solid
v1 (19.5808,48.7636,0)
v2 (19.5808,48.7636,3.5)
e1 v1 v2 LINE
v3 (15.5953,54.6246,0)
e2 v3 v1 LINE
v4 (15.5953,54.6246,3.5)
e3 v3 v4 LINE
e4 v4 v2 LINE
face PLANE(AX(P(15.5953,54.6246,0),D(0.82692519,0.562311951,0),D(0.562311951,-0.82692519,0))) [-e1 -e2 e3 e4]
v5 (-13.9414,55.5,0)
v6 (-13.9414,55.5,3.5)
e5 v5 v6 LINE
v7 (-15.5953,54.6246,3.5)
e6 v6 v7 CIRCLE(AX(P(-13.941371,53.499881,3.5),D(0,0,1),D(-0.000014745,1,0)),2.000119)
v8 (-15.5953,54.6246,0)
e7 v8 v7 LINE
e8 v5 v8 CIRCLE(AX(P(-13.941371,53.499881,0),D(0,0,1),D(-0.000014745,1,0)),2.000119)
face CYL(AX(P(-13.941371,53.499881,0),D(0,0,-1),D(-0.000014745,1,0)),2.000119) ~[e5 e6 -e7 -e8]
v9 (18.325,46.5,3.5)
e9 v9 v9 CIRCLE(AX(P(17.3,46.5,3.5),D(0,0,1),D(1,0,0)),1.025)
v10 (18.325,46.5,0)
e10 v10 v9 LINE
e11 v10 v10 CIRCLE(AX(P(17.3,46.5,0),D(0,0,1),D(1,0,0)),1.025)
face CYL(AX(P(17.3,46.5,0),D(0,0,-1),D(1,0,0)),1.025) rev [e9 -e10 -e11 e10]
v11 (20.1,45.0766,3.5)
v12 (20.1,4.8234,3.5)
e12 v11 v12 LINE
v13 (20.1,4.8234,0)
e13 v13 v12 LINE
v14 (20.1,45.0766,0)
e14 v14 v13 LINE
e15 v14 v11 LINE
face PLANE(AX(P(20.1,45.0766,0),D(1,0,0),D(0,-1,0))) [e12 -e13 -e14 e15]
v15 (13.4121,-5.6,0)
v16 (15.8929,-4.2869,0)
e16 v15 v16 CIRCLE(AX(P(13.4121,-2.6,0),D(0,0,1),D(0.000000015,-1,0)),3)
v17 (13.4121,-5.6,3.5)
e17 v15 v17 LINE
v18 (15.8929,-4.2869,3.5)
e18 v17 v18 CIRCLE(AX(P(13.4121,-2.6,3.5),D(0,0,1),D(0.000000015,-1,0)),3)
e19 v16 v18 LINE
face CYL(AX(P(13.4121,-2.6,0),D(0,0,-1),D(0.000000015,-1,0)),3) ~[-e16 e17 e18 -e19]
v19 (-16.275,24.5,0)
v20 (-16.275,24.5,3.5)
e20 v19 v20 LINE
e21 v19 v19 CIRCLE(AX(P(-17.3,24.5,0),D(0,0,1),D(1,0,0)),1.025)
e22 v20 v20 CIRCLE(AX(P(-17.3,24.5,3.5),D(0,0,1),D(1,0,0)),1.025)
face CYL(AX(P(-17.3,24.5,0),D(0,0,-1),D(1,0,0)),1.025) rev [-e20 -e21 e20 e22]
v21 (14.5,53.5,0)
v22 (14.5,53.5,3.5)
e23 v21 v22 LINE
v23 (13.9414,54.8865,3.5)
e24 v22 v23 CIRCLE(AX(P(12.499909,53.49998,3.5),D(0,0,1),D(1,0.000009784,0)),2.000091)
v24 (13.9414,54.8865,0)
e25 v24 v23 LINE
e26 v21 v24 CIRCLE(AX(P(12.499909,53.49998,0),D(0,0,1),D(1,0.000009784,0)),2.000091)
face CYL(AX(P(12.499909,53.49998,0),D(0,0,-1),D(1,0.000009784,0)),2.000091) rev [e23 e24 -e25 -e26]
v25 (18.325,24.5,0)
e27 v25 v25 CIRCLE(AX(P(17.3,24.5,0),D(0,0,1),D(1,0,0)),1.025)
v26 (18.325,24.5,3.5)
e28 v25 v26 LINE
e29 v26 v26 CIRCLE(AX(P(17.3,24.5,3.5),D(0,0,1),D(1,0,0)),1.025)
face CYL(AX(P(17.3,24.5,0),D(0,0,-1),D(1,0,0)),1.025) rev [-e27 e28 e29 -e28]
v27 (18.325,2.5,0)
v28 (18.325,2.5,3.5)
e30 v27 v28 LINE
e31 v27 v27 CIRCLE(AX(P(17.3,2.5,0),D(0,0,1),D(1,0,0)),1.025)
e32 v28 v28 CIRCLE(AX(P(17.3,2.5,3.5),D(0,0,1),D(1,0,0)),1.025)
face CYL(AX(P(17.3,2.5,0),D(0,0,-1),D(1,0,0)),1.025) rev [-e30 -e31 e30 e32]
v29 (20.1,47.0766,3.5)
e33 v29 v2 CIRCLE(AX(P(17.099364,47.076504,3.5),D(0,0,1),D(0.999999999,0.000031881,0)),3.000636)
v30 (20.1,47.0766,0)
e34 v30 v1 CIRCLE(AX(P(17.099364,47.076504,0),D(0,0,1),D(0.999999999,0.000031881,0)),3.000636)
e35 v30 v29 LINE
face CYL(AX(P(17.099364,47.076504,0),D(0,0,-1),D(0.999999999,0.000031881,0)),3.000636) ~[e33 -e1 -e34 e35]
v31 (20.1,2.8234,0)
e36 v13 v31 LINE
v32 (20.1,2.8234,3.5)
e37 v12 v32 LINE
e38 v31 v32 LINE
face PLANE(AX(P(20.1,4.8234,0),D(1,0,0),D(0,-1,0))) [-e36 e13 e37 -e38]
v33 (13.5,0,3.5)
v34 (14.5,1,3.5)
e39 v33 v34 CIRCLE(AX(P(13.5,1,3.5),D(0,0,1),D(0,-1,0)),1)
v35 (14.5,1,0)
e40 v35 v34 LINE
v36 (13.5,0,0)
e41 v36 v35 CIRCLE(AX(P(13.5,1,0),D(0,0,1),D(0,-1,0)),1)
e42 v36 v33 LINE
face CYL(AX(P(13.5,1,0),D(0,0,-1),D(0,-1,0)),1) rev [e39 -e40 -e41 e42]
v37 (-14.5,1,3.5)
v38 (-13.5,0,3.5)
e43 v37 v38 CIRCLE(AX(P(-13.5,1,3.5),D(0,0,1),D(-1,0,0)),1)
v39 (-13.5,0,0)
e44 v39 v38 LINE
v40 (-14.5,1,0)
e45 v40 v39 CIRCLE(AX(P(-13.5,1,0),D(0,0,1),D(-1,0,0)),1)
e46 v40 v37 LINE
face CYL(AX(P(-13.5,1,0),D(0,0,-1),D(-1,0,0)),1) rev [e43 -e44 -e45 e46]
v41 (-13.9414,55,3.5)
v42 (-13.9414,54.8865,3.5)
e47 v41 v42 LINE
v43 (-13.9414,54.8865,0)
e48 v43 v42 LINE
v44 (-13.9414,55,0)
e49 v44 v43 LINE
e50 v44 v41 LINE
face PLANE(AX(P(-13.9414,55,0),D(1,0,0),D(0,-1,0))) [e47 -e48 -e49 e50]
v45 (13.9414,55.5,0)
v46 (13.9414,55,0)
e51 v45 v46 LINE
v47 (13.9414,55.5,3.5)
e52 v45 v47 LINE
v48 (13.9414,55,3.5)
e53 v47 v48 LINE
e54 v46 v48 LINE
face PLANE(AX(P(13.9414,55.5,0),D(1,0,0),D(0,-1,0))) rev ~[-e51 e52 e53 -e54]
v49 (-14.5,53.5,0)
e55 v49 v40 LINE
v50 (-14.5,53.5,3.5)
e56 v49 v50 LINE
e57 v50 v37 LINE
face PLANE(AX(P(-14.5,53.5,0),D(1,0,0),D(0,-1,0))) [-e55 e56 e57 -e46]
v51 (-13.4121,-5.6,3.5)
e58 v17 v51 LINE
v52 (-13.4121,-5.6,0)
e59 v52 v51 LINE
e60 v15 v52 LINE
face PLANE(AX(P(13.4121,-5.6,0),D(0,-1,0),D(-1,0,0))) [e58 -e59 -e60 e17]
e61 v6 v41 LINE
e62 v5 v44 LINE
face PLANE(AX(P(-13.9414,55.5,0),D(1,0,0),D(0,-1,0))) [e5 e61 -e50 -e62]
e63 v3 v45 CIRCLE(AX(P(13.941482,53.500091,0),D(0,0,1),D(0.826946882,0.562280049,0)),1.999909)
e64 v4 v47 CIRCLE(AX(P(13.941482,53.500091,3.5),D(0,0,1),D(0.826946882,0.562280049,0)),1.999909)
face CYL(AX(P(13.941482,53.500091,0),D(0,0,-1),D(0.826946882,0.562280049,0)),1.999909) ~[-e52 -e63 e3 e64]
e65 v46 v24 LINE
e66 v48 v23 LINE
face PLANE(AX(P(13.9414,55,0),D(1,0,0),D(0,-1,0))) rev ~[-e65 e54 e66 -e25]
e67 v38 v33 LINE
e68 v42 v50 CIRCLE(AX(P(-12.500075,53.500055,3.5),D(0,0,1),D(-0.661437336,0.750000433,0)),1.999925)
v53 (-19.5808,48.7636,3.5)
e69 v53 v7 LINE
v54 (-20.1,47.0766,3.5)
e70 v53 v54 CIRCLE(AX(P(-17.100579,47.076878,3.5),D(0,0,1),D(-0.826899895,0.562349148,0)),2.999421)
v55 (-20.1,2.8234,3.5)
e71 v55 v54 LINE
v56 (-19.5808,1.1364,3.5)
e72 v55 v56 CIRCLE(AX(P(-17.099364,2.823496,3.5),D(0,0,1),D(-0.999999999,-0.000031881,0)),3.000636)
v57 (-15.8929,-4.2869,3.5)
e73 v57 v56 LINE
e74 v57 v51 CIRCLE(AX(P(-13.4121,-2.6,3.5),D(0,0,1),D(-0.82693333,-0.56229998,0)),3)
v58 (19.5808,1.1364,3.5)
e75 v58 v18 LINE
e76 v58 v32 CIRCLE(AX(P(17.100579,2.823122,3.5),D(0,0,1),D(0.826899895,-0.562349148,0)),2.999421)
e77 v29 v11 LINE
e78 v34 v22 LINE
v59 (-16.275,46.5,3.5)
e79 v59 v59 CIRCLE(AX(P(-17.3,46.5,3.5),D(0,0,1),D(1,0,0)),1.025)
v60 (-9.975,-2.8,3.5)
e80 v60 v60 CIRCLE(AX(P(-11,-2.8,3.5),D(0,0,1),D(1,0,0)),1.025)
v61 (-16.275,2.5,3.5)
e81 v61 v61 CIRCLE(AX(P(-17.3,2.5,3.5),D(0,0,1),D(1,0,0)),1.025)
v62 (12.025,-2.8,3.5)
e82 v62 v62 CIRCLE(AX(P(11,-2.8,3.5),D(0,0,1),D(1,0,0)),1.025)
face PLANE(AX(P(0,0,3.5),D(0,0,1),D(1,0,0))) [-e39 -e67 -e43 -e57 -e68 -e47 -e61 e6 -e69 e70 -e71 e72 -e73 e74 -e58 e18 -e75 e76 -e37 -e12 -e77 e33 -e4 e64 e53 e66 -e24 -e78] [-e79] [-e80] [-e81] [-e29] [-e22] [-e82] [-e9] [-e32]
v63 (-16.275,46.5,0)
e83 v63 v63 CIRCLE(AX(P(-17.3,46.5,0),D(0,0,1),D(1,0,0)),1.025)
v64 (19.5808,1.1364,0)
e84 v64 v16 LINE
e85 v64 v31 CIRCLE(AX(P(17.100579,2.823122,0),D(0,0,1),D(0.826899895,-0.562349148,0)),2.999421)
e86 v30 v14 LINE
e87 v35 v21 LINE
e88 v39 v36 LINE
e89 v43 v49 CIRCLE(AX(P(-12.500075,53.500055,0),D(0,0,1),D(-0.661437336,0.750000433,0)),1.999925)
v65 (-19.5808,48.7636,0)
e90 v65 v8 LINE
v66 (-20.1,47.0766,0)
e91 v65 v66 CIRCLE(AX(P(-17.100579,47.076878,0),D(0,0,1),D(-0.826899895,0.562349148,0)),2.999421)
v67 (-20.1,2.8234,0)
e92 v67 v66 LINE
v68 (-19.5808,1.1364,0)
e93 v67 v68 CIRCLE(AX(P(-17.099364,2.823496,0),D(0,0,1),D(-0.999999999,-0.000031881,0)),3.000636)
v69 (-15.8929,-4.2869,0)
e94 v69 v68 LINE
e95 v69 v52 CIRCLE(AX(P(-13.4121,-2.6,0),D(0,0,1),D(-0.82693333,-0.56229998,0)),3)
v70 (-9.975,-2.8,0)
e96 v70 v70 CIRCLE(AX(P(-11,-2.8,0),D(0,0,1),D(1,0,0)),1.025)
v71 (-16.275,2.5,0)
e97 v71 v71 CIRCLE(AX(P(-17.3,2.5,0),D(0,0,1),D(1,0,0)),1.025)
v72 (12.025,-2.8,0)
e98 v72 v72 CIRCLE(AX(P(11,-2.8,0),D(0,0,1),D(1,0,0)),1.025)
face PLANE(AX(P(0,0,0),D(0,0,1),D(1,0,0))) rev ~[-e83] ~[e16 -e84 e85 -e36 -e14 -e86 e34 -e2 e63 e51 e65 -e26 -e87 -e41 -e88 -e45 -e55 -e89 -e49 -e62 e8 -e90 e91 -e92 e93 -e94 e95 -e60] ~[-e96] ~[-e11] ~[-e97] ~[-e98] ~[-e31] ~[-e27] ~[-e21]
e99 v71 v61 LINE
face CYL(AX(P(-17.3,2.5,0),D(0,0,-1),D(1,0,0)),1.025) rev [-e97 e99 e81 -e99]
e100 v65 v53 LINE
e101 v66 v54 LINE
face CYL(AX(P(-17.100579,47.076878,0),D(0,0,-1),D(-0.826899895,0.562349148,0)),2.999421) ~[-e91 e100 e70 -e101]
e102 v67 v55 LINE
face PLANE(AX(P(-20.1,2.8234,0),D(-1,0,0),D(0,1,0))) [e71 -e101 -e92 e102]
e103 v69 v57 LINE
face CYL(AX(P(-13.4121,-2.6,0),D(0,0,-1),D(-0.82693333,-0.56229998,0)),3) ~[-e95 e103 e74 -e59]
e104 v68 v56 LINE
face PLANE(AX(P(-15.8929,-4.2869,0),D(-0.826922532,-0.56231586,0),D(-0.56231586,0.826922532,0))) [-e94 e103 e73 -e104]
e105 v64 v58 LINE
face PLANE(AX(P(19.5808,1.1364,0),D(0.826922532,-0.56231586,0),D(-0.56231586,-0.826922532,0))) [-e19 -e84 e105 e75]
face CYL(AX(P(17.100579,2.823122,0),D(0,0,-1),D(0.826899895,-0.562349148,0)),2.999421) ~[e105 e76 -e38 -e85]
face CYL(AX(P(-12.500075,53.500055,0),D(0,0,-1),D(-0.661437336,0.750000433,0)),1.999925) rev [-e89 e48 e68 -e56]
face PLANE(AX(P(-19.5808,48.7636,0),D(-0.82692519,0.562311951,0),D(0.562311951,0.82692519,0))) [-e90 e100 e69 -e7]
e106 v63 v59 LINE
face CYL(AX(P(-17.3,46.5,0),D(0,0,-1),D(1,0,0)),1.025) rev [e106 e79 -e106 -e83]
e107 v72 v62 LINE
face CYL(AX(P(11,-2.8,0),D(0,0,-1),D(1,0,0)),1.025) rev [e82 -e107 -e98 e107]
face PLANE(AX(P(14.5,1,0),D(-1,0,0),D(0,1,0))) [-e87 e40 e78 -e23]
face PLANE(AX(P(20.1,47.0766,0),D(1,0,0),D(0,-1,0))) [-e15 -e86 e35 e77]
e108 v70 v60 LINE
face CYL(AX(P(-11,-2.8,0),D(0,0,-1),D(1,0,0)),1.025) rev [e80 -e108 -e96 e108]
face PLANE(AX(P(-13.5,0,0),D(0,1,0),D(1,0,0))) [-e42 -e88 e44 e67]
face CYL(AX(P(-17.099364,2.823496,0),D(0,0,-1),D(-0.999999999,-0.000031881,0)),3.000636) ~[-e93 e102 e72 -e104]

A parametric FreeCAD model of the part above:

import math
import FreeCAD as App
import Part
import Sketcher

doc = App.newDocument("Part")
body = doc.addObject("PartDesign::Body", "Body")

sketch1 = body.newObject("Sketcher::SketchObject", "Sketch")
sketch1.AttachmentSupport = (doc.getObject("XY_Plane"), [""])
sketch1.MapMode = "FlatFace"
sketch1.addGeometry(Part.LineSegment(App.Vector(-14.5, 1, 0), App.Vector(-14.5, 53.5, 0)), False)
sketch1.addGeometry(Part.ArcOfCircle(Part.Circle(App.Vector(-12.5, 53.5, 0), App.Vector(0, 0, 1), 2), math.radians(136), math.radians(180)), False)
sketch1.addGeometry(Part.LineSegment(App.Vector(-13.9, 54.9, 0), App.Vector(-13.9, 55.5, 0)), False)
sketch1.addGeometry(Part.ArcOfCircle(Part.Circle(App.Vector(-13.9, 53.5, 0), App.Vector(0, 0, 1), 2), math.radians(90), math.radians(146)), False)
sketch1.addGeometry(Part.LineSegment(App.Vector(-15.6, 54.6, 0), App.Vector(-19.6, 48.8, 0)), False)
sketch1.addGeometry(Part.ArcOfCircle(Part.Circle(App.Vector(-17.1, 47.1, 0), App.Vector(0, 0, 1), 3), math.radians(146), math.radians(180)), False)
sketch1.addGeometry(Part.LineSegment(App.Vector(-20.1, 47.1, 0), App.Vector(-20.1, 2.8, 0)), False)
sketch1.addGeometry(Part.ArcOfCircle(Part.Circle(App.Vector(-17.1, 2.8, 0), App.Vector(0, 0, 1), 3), math.radians(180), math.radians(214)), False)
sketch1.addGeometry(Part.LineSegment(App.Vector(-19.6, 1.1, 0), App.Vector(-15.9, -4.3, 0)), False)
sketch1.addGeometry(Part.ArcOfCircle(Part.Circle(App.Vector(-13.4, -2.6, 0), App.Vector(0, 0, 1), 3), math.radians(-146), math.radians(-90)), False)
sketch1.addGeometry(Part.LineSegment(App.Vector(-13.4, -5.6, 0), App.Vector(13.4, -5.6, 0)), False)
sketch1.addGeometry(Part.ArcOfCircle(Part.Circle(App.Vector(13.4, -2.6, 0), App.Vector(0, 0, 1), 3), math.radians(-90), math.radians(-34)), False)
sketch1.addGeometry(Part.LineSegment(App.Vector(15.9, -4.3, 0), App.Vector(19.6, 1.1, 0)), False)
sketch1.addGeometry(Part.ArcOfCircle(Part.Circle(App.Vector(17.1, 2.8, 0), App.Vector(0, 0, 1), 3), math.radians(-34), math.radians(0)), False)
sketch1.addGeometry(Part.LineSegment(App.Vector(20.1, 2.8, 0), App.Vector(20.1, 47.1, 0)), False)
sketch1.addGeometry(Part.ArcOfCircle(Part.Circle(App.Vector(17.1, 47.1, 0), App.Vector(0, 0, 1), 3), math.radians(0), math.radians(34)), False)
sketch1.addGeometry(Part.LineSegment(App.Vector(19.6, 48.8, 0), App.Vector(15.6, 54.6, 0)), False)
sketch1.addGeometry(Part.ArcOfCircle(Part.Circle(App.Vector(13.9, 53.5, 0), App.Vector(0, 0, 1), 2), math.radians(34), math.radians(90)), False)
sketch1.addGeometry(Part.LineSegment(App.Vector(13.9, 55.5, 0), App.Vector(13.9, 54.9, 0)), False)
sketch1.addGeometry(Part.ArcOfCircle(Part.Circle(App.Vector(12.5, 53.5, 0), App.Vector(0, 0, 1), 2), math.radians(0), math.radians(44)), False)
sketch1.addGeometry(Part.LineSegment(App.Vector(14.5, 53.5, 0), App.Vector(14.5, 1, 0)), False)
sketch1.addGeometry(Part.ArcOfCircle(Part.Circle(App.Vector(13.5, 1, 0), App.Vector(0, 0, 1), 1), math.radians(-90), math.radians(0)), False)
sketch1.addGeometry(Part.LineSegment(App.Vector(13.5, 0, 0), App.Vector(-13.5, 0, 0)), False)
sketch1.addGeometry(Part.ArcOfCircle(Part.Circle(App.Vector(-13.5, 1, 0), App.Vector(0, 0, 1), 1), math.radians(180), math.radians(270)), False)
sketch1.addGeometry(Part.Circle(App.Vector(-11, -2.8, 0), App.Vector(0, 0, 1), 1), False)
sketch1.addGeometry(Part.Circle(App.Vector(-17.3, 2.5, 0), App.Vector(0, 0, 1), 1), False)
sketch1.addGeometry(Part.Circle(App.Vector(-17.3, 24.5, 0), App.Vector(0, 0, 1), 1), False)
sketch1.addGeometry(Part.Circle(App.Vector(11, -2.8, 0), App.Vector(0, 0, 1), 1), False)
sketch1.addGeometry(Part.Circle(App.Vector(17.3, 2.5, 0), App.Vector(0, 0, 1), 1), False)
sketch1.addGeometry(Part.Circle(App.Vector(17.3, 24.5, 0), App.Vector(0, 0, 1), 1), False)
sketch1.addGeometry(Part.Circle(App.Vector(-17.3, 46.5, 0), App.Vector(0, 0, 1), 1), False)
sketch1.addGeometry(Part.Circle(App.Vector(17.3, 46.5, 0), App.Vector(0, 0, 1), 1), False)
sketch1.addConstraint(Sketcher.Constraint("Tangent", 0, 2, 1, 2))
sketch1.addConstraint(Sketcher.Constraint("Coincident", 1, 1, 2, 1))
sketch1.addConstraint(Sketcher.Constraint("Coincident", 2, 2, 3, 1))
sketch1.addConstraint(Sketcher.Constraint("Tangent", 3, 2, 4, 1))
sketch1.addConstraint(Sketcher.Constraint("Tangent", 4, 2, 5, 1))
sketch1.addConstraint(Sketcher.Constraint("Tangent", 5, 2, 6, 1))
sketch1.addConstraint(Sketcher.Constraint("Tangent", 6, 2, 7, 1))
sketch1.addConstraint(Sketcher.Constraint("Tangent", 7, 2, 8, 1))
sketch1.addConstraint(Sketcher.Constraint("Tangent", 8, 2, 9, 1))
sketch1.addConstraint(Sketcher.Constraint("Tangent", 9, 2, 10, 1))
sketch1.addConstraint(Sketcher.Constraint("Tangent", 10, 2, 11, 1))
sketch1.addConstraint(Sketcher.Constraint("Tangent", 11, 2, 12, 1))
sketch1.addConstraint(Sketcher.Constraint("Tangent", 12, 2, 13, 1))
sketch1.addConstraint(Sketcher.Constraint("Tangent", 13, 2, 14, 1))
sketch1.addConstraint(Sketcher.Constraint("Tangent", 14, 2, 15, 1))
sketch1.addConstraint(Sketcher.Constraint("Tangent", 15, 2, 16, 1))
sketch1.addConstraint(Sketcher.Constraint("Tangent", 16, 2, 17, 1))
sketch1.addConstraint(Sketcher.Constraint("Coincident", 17, 2, 18, 1))
sketch1.addConstraint(Sketcher.Constraint("Coincident", 18, 2, 19, 2))
sketch1.addConstraint(Sketcher.Constraint("Tangent", 19, 1, 20, 1))
sketch1.addConstraint(Sketcher.Constraint("Tangent", 20, 2, 21, 2))
sketch1.addConstraint(Sketcher.Constraint("Tangent", 21, 1, 22, 1))
sketch1.addConstraint(Sketcher.Constraint("Tangent", 22, 2, 23, 2))
sketch1.addConstraint(Sketcher.Constraint("Tangent", 23, 1, 0, 1))
sketch1.addConstraint(Sketcher.Constraint("Vertical", 0))
sketch1.addConstraint(Sketcher.Constraint("Vertical", 2))
sketch1.addConstraint(Sketcher.Constraint("Vertical", 6))
sketch1.addConstraint(Sketcher.Constraint("Horizontal", 10))
sketch1.addConstraint(Sketcher.Constraint("Vertical", 14))
sketch1.addConstraint(Sketcher.Constraint("Vertical", 18))
sketch1.addConstraint(Sketcher.Constraint("Vertical", 20))
sketch1.addConstraint(Sketcher.Constraint("Horizontal", 22))
sketch1.addConstraint(Sketcher.Constraint("Equal", 1, 3))
sketch1.addConstraint(Sketcher.Constraint("Equal", 5, 7))
sketch1.addConstraint(Sketcher.Constraint("Equal", 7, 9))
sketch1.addConstraint(Sketcher.Constraint("Equal", 9, 11))
sketch1.addConstraint(Sketcher.Constraint("Equal", 11, 13))
sketch1.addConstraint(Sketcher.Constraint("Equal", 13, 15))
sketch1.addConstraint(Sketcher.Constraint("Equal", 3, 17))
sketch1.addConstraint(Sketcher.Constraint("Equal", 17, 19))
sketch1.addConstraint(Sketcher.Constraint("Equal", 21, 23))
sketch1.addConstraint(Sketcher.Constraint("Equal", 24, 25))
sketch1.addConstraint(Sketcher.Constraint("Equal", 25, 26))
sketch1.addConstraint(Sketcher.Constraint("Equal", 26, 27))
sketch1.addConstraint(Sketcher.Constraint("Equal", 27, 28))
sketch1.addConstraint(Sketcher.Constraint("Equal", 28, 29))
sketch1.addConstraint(Sketcher.Constraint("Equal", 29, 30))
sketch1.addConstraint(Sketcher.Constraint("Equal", 30, 31))
sketch1.addConstraint(Sketcher.Constraint("Symmetric", 21, 1, 22, 2, -1, 1))
sketch1.addConstraint(Sketcher.Constraint("Symmetric", 7, 3, 13, 3, -2))
sketch1.addConstraint(Sketcher.Constraint("Symmetric", 3, 3, 17, 3, -2))
sketch1.addConstraint(Sketcher.Constraint("Symmetric", 24, 3, 27, 3, -2))
sketch1.addConstraint(Sketcher.Constraint("Symmetric", 25, 3, 28, 3, -2))
sketch1.addConstraint(Sketcher.Constraint("Symmetric", 26, 3, 29, 3, -2))
sketch1.addConstraint(Sketcher.Constraint("Symmetric", 30, 3, 31, 3, -2))
sketch1.addConstraint(Sketcher.Constraint("Symmetric", 1, 1, 18, 2, -2))
sketch1.addConstraint(Sketcher.Constraint("Parallel", 4, 12))
sketch1.addConstraint(Sketcher.Constraint("Parallel", 8, 16))
sketch1.addConstraint(Sketcher.Constraint("Horizontal", 1, 3, 3, 3))
sketch1.addConstraint(Sketcher.Constraint("Horizontal", 5, 3, 15, 3))
sketch1.addConstraint(Sketcher.Constraint("Vertical", 25, 3, 26, 3))
sketch1.addConstraint(Sketcher.Constraint("Vertical", 26, 3, 30, 3))
sketch1.addConstraint(Sketcher.Constraint("Vertical", 3, 3, 1, 1))
sketch1.addConstraint(Sketcher.Constraint("Radius", 1, 2.0))
sketch1.addConstraint(Sketcher.Constraint("Radius", 21, 1.0))
sketch1.addConstraint(Sketcher.Constraint("Radius", 5, 3.0))
sketch1.addConstraint(Sketcher.Constraint("Diameter", 24, 2.05))
sketch1.addConstraint(Sketcher.Constraint("DistanceX", 22, 2, 22, 1, 27.0))
sketch1.addConstraint(Sketcher.Constraint("DistanceY", 0, 1, 0, 2, 52.5))
sketch1.addConstraint(Sketcher.Constraint("DistanceX", 24, 3, -1, 1, 11.0))
sketch1.addConstraint(Sketcher.Constraint("DistanceY", 25, 3, 26, 3, 22.0))
sketch1.addConstraint(Sketcher.Constraint("DistanceY", 30, 3, 3, 3, 7.0))
sketch1.addConstraint(Sketcher.Constraint("DistanceY", 26, 3, 30, 3, 22.0))
sketch1.addConstraint(Sketcher.Constraint("DistanceX", 5, 3, -1, 1, 17.1))
sketch1.addConstraint(Sketcher.Constraint("DistanceY", 9, 3, -1, 1, 2.6))
sketch1.addConstraint(Sketcher.Constraint("DistanceY", 24, 3, -1, 1, 2.8))
sketch1.addConstraint(Sketcher.Constraint("DistanceX", 25, 3, -1, 1, 17.3))
sketch1.addConstraint(Sketcher.Constraint("DistanceY", 5, 3, 1, 1, 7.81))
sketch1.addConstraint(Sketcher.Constraint("DistanceX", 10, 1, 10, 2, 26.8242))
sketch1.addConstraint(Sketcher.Constraint("DistanceY", 2, 1, 2, 2, 0.6135))
pad1 = body.newObject("PartDesign::Pad", "Pad")
pad1.Profile = sketch1
pad1.Length = 3.5

doc.recompute()
